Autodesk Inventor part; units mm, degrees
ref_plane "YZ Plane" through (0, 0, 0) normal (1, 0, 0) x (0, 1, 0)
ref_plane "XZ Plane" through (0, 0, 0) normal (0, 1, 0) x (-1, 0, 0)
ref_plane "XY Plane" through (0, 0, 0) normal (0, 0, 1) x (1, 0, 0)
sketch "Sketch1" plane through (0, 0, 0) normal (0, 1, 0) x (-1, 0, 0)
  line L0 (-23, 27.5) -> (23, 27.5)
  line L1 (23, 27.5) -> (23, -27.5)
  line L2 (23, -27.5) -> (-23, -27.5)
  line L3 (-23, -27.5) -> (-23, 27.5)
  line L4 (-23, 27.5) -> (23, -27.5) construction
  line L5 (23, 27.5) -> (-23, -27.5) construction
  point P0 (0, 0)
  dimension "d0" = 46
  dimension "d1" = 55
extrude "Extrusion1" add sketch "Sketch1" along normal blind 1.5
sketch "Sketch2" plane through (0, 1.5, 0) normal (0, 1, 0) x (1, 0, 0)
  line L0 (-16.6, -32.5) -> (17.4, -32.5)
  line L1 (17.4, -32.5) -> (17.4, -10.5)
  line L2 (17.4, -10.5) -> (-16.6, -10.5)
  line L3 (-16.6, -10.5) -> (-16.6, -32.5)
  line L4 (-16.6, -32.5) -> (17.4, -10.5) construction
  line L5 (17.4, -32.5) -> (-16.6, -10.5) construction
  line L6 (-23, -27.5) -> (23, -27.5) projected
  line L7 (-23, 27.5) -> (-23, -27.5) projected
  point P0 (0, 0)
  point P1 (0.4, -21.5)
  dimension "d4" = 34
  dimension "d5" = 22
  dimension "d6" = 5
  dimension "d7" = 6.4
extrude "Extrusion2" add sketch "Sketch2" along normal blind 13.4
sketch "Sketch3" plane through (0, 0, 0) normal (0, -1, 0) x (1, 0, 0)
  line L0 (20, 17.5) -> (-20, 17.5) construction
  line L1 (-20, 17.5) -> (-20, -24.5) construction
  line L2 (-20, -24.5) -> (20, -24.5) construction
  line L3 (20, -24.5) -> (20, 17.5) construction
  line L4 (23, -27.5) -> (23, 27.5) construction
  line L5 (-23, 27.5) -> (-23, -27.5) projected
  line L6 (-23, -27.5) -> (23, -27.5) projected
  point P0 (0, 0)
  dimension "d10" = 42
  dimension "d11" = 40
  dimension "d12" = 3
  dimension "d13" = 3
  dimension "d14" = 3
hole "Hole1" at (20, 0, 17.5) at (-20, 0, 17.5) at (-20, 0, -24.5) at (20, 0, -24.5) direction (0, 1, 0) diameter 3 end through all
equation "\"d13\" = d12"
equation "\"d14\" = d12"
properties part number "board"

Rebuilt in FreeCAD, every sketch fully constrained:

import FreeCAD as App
import Part
import Sketcher

V = App.Vector
Q = App.Units.Quantity


def add_polygon(sketch, points):
    """Adds a closed chain of lines whose ends are joined by coincident constraints."""
    first, n = sketch.GeometryCount, len(points)
    for a, b in zip(points, points[1:] + points[:1]):
        sketch.addGeometry(Part.LineSegment(App.Vector(*a, 0), App.Vector(*b, 0)), False)
    for i in range(n):
        sketch.addConstraint(Sketcher.Constraint("Coincident", first + i, 2, first + (i + 1) % n, 1))

doc = App.newDocument("Part")
body = doc.addObject("PartDesign::Body", "Body")

# Sketch on XZ plane
sketch1 = body.newObject("Sketcher::SketchObject", "Sketch")
sketch1.AttachmentSupport = (doc.getObject("XZ_Plane"), [""])
sketch1.MapMode = "FlatFace"
add_polygon(sketch1, [(-23, 28), (23, 28), (23, -28), (-23, -28)])  # lines 0-3
sketch1.addConstraint(Sketcher.Constraint("Horizontal", 0))
sketch1.addConstraint(Sketcher.Constraint("Vertical", 1))
sketch1.addConstraint(Sketcher.Constraint("Horizontal", 2))
sketch1.addConstraint(Sketcher.Constraint("Vertical", 3))
sketch1.addConstraint(Sketcher.Constraint("Symmetric", 0, 2, 2, 2, -1, 1))
sketch1.addConstraint(Sketcher.Constraint("DistanceX", 0, 1, 0, 2, Q("46 mm")))
sketch1.addConstraint(Sketcher.Constraint("DistanceY", 1, 2, 1, 1, Q("55 mm")))
pad1 = body.newObject("PartDesign::Pad", "Pad")
pad1.Profile = sketch1
pad1.Length = 1.5
pad1.Reversed = True

# Sketch on XZ plane
sketch2 = body.newObject("Sketcher::SketchObject", "Sketch001")
sketch2.AttachmentSupport = (doc.getObject("XZ_Plane"), [""])
sketch2.MapMode = "FlatFace"
sketch2.AttachmentOffset = App.Placement(V(0, 0, -1.5), App.Rotation())
add_polygon(sketch2, [(-17, 32), (17, 32), (17, 10), (-17, 10)])  # lines 0-3
sketch2.addConstraint(Sketcher.Constraint("Horizontal", 0))
sketch2.addConstraint(Sketcher.Constraint("Vertical", 1))
sketch2.addConstraint(Sketcher.Constraint("Horizontal", 2))
sketch2.addConstraint(Sketcher.Constraint("Vertical", 3))
sketch2.addConstraint(Sketcher.Constraint("DistanceX", 0, 1, 0, 2, Q("34 mm")))
sketch2.addConstraint(Sketcher.Constraint("DistanceY", 1, 2, 1, 1, Q("22 mm")))
sketch2.addConstraint(Sketcher.Constraint("DistanceX", -1, 1, 0, 2, Q("17.4 mm")))
sketch2.addConstraint(Sketcher.Constraint("DistanceY", -1, 1, 0, 2, Q("32.5 mm")))
pad2 = body.newObject("PartDesign::Pad", "Pad001")
pad2.Profile = sketch2
pad2.Length = 13.4
pad2.Reversed = True

# Sketch on XZ plane
sketch3 = body.newObject("Sketcher::SketchObject", "Sketch002")
sketch3.AttachmentSupport = (doc.getObject("XZ_Plane"), [""])
sketch3.MapMode = "FlatFace"
sketch3.addGeometry(Part.Circle(V(20, 17.5, 0), V(0, 0, 1), 1.5), False)
sketch3.addGeometry(Part.Circle(V(-20, 17.5, 0), V(0, 0, 1), 1.5), False)
sketch3.addGeometry(Part.Circle(V(-20, -24.5, 0), V(0, 0, 1), 1.5), False)
sketch3.addGeometry(Part.Circle(V(20, -24.5, 0), V(0, 0, 1), 1.5), False)
sketch3.addConstraint(Sketcher.Constraint("Equal", 0, 1))
sketch3.addConstraint(Sketcher.Constraint("Equal", 1, 2))
sketch3.addConstraint(Sketcher.Constraint("Equal", 2, 3))
sketch3.addConstraint(Sketcher.Constraint("Symmetric", 0, 3, 1, 3, -2))
sketch3.addConstraint(Sketcher.Constraint("Symmetric", 2, 3, 3, 3, -2))
sketch3.addConstraint(Sketcher.Constraint("Vertical", 1, 3, 2, 3))
sketch3.addConstraint(Sketcher.Constraint("Diameter", 0, Q("3 mm")))
sketch3.addConstraint(Sketcher.Constraint("DistanceX", -1, 1, 0, 3, Q("20 mm")))
sketch3.addConstraint(Sketcher.Constraint("DistanceY", 2, 3, 1, 3, Q("42 mm")))
sketch3.addConstraint(Sketcher.Constraint("DistanceY", -1, 1, 0, 3, Q("17.5 mm")))
doc.recompute()
hole = body.newObject("PartDesign::Hole", "Hole")
hole.Profile = sketch3
hole.ThreadType = "None"
hole.Diameter = 3
hole.DepthType = "ThroughAll"

doc.recompute()
